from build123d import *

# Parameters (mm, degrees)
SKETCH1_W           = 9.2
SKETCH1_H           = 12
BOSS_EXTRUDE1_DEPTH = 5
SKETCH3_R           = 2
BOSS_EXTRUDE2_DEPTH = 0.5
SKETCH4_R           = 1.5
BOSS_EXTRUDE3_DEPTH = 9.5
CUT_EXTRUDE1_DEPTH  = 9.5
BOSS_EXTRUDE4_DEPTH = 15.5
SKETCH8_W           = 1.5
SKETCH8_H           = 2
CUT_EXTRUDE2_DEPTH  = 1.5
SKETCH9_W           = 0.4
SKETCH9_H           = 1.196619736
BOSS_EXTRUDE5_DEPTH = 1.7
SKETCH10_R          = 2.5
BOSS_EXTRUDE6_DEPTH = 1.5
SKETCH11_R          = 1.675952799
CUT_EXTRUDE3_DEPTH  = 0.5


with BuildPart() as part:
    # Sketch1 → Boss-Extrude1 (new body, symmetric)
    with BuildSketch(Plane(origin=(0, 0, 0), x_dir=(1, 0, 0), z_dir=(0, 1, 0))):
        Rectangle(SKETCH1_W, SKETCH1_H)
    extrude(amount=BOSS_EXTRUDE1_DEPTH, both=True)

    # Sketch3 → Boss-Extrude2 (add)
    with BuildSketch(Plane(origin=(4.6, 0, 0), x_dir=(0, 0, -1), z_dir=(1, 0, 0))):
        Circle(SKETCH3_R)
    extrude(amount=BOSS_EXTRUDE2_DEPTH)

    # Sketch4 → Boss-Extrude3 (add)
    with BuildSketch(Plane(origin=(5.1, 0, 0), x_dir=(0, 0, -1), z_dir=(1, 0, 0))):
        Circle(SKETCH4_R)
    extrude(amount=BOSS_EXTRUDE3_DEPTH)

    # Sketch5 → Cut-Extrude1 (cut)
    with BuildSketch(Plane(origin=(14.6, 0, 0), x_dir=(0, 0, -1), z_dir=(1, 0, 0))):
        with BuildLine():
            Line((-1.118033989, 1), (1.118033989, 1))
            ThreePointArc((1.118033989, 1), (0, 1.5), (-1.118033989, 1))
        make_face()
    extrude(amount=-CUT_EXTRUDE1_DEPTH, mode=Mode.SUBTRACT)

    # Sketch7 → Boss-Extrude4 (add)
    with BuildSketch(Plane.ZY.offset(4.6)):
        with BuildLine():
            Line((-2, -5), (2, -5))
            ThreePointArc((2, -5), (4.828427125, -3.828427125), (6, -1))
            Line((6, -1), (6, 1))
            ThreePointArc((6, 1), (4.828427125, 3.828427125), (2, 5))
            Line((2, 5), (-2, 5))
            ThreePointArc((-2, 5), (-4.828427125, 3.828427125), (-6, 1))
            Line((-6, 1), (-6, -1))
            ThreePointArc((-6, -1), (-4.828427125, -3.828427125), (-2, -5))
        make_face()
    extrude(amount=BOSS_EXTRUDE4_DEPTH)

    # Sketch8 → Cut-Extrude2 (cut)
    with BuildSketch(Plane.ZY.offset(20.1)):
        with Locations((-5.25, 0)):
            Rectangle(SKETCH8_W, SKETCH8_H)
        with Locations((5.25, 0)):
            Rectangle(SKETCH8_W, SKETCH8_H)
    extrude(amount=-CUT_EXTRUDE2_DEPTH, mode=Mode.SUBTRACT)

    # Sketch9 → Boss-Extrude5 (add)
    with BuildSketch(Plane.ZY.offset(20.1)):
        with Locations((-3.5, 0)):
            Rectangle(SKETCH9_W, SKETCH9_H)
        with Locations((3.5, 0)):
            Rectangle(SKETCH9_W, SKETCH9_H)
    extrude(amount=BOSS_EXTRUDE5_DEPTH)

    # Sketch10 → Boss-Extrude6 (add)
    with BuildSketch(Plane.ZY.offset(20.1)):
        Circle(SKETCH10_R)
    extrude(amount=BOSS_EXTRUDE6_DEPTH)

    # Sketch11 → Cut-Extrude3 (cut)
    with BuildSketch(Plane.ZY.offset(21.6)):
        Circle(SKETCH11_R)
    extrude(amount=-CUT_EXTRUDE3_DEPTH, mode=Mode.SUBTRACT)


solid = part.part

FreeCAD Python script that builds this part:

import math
import FreeCAD as App
import Part
import Sketcher
from FreeCAD import Vector

doc = App.newDocument("Part")
body = doc.addObject("PartDesign::Body", "Body")

# Sketch on XZ plane
sketch1 = body.newObject("Sketcher::SketchObject", "Sketch")
sketch1.AttachmentSupport = (doc.getObject("XZ_Plane"), [""])
sketch1.MapMode = "FlatFace"
sketch1.addGeometry([
    Part.LineSegment(Vector(-5, -6, 0), Vector(-5, 6, 0)),
    Part.LineSegment(Vector(-5, 6, 0), Vector(5, 6, 0)),
    Part.LineSegment(Vector(5, 6, 0), Vector(5, -6, 0)),
    Part.LineSegment(Vector(5, -6, 0), Vector(-5, -6, 0)),
], False)
sketch1.addConstraint([
    Sketcher.Constraint("Coincident", 0, 2, 1, 1),
    Sketcher.Constraint("Coincident", 1, 2, 2, 1),
    Sketcher.Constraint("Coincident", 2, 2, 3, 1),
    Sketcher.Constraint("Coincident", 3, 2, 0, 1),
    Sketcher.Constraint("Vertical", 0),
    Sketcher.Constraint("Horizontal", 1),
    Sketcher.Constraint("Vertical", 2),
    Sketcher.Constraint("Horizontal", 3),
    Sketcher.Constraint("Symmetric", 0, 2, 2, 2, -1, 1),
    Sketcher.Constraint("DistanceY", 0, 1, 0, 2, 12.0),
    Sketcher.Constraint("DistanceX", 1, 1, 1, 2, 9.2),
])
pad1 = body.newObject("PartDesign::Pad", "Pad")
pad1.Profile = sketch1
pad1.Length = 10
pad1.Midplane = True

# Sketch on YZ plane
sketch2 = body.newObject("Sketcher::SketchObject", "Sketch001")
sketch2.AttachmentSupport = (doc.getObject("YZ_Plane"), [""])
sketch2.MapMode = "FlatFace"
sketch2.AttachmentOffset = App.Placement(Vector(0, 0, 4.6), App.Rotation())
sketch2.addGeometry(Part.Circle(Vector(0, 0, 0), Vector(0, 0, 1), 2), False)
sketch2.addConstraint([
    Sketcher.Constraint("Coincident", 0, 3, -1, 1),
    Sketcher.Constraint("Diameter", 0, 4.0),
])
pad2 = body.newObject("PartDesign::Pad", "Pad001")
pad2.Profile = sketch2
pad2.Length = 0.5

# Sketch on YZ plane
sketch3 = body.newObject("Sketcher::SketchObject", "Sketch002")
sketch3.AttachmentSupport = (doc.getObject("YZ_Plane"), [""])
sketch3.MapMode = "FlatFace"
sketch3.AttachmentOffset = App.Placement(Vector(0, 0, 5.1), App.Rotation())
sketch3.addGeometry(Part.Circle(Vector(0, 0, 0), Vector(0, 0, 1), 1.5), False)
sketch3.addConstraint([
    Sketcher.Constraint("Coincident", 0, 3, -1, 1),
    Sketcher.Constraint("Diameter", 0, 3.0),
])
pad3 = body.newObject("PartDesign::Pad", "Pad002")
pad3.Profile = sketch3
pad3.Length = 9.5

# Sketch on YZ plane
sketch4 = body.newObject("Sketcher::SketchObject", "Sketch003")
sketch4.AttachmentSupport = (doc.getObject("YZ_Plane"), [""])
sketch4.MapMode = "FlatFace"
sketch4.AttachmentOffset = App.Placement(Vector(0, 0, 14.6), App.Rotation())
sketch4.addGeometry([
    Part.LineSegment(Vector(1, 1.1, 0), Vector(1, -1.1, 0)),
    Part.ArcOfCircle(Part.Circle(Vector(0, 0, 0), Vector(0, 0, 1), 1.5), math.radians(-48), math.radians(48)),
], False)
sketch4.addConstraint([
    Sketcher.Constraint("Coincident", 0, 1, 1, 2),
    Sketcher.Constraint("Coincident", 1, 1, 0, 2),
    Sketcher.Constraint("Vertical", 0),
    Sketcher.Constraint("Coincident", 1, 3, -1, 1),
    Sketcher.Constraint("Radius", 1, 1.5),
    Sketcher.Constraint("DistanceX", -1, 1, 0, 1, 1.0),
])
pocket1 = body.newObject("PartDesign::Pocket", "Pocket")
pocket1.Profile = sketch4
pocket1.Length = 9.5

# Sketch on YZ plane
sketch5 = body.newObject("Sketcher::SketchObject", "Sketch004")
sketch5.AttachmentSupport = (doc.getObject("YZ_Plane"), [""])
sketch5.MapMode = "FlatFace"
sketch5.AttachmentOffset = App.Placement(Vector(0, 0, -4.6), App.Rotation())
sketch5.addGeometry([
    Part.LineSegment(Vector(-5, -2, 0), Vector(-5, 2, 0)),  # 0
    Part.ArcOfCircle(Part.Circle(Vector(-1, 2, 0), Vector(0, 0, 1), 4), math.radians(90), math.radians(180)),  # 1
    Part.LineSegment(Vector(-1, 6, 0), Vector(1, 6, 0)),  # 2
    Part.ArcOfCircle(Part.Circle(Vector(1, 2, 0), Vector(0, 0, 1), 4), math.radians(0), math.radians(90)),  # 3
    Part.LineSegment(Vector(5, 2, 0), Vector(5, -2, 0)),  # 4
    Part.ArcOfCircle(Part.Circle(Vector(1, -2, 0), Vector(0, 0, 1), 4), math.radians(-90), math.radians(0)),  # 5
    Part.LineSegment(Vector(1, -6, 0), Vector(-1, -6, 0)),  # 6
    Part.ArcOfCircle(Part.Circle(Vector(-1, -2, 0), Vector(0, 0, 1), 4), math.radians(180), math.radians(270)),  # 7
], False)
sketch5.addConstraint([
    Sketcher.Constraint("Tangent", 0, 2, 1, 2),
    Sketcher.Constraint("Tangent", 1, 1, 2, 1),
    Sketcher.Constraint("Tangent", 2, 2, 3, 2),
    Sketcher.Constraint("Tangent", 3, 1, 4, 1),
    Sketcher.Constraint("Tangent", 4, 2, 5, 2),
    Sketcher.Constraint("Tangent", 5, 1, 6, 1),
    Sketcher.Constraint("Tangent", 6, 2, 7, 2),
    Sketcher.Constraint("Tangent", 7, 1, 0, 1),
    Sketcher.Constraint("Vertical", 0),
    Sketcher.Constraint("Horizontal", 2),
    Sketcher.Constraint("Vertical", 4),
    Sketcher.Constraint("Horizontal", 6),
    Sketcher.Constraint("Equal", 1, 3),
    Sketcher.Constraint("Equal", 3, 5),
    Sketcher.Constraint("Equal", 5, 7),
    Sketcher.Constraint("Symmetric", 1, 3, 5, 3, -1, 1),
    Sketcher.Constraint("Radius", 1, 4.0),
    Sketcher.Constraint("DistanceX", 2, 1, 2, 2, 2.0),
    Sketcher.Constraint("DistanceY", 0, 1, 0, 2, 4.0),
])
pad4 = body.newObject("PartDesign::Pad", "Pad003")
pad4.Profile = sketch5
pad4.Length = 15.5
pad4.Reversed = True

# Sketch on YZ plane
sketch6 = body.newObject("Sketcher::SketchObject", "Sketch005")
sketch6.AttachmentSupport = (doc.getObject("YZ_Plane"), [""])
sketch6.MapMode = "FlatFace"
sketch6.AttachmentOffset = App.Placement(Vector(0, 0, -20.1), App.Rotation())
sketch6.addGeometry([
    Part.LineSegment(Vector(1, -6, 0), Vector(-1, -6, 0)),  # 0
    Part.LineSegment(Vector(-1, -6, 0), Vector(-1, -4.5, 0)),  # 1
    Part.LineSegment(Vector(-1, -4.5, 0), Vector(1, -4.5, 0)),  # 2
    Part.LineSegment(Vector(1, -4.5, 0), Vector(1, -6, 0)),  # 3
    Part.LineSegment(Vector(1, 4.5, 0), Vector(-1, 4.5, 0)),  # 4
    Part.LineSegment(Vector(-1, 4.5, 0), Vector(-1, 6, 0)),  # 5
    Part.LineSegment(Vector(-1, 6, 0), Vector(1, 6, 0)),  # 6
    Part.LineSegment(Vector(1, 6, 0), Vector(1, 4.5, 0)),  # 7
], False)
sketch6.addConstraint([
    Sketcher.Constraint("Coincident", 0, 2, 1, 1),
    Sketcher.Constraint("Coincident", 1, 2, 2, 1),
    Sketcher.Constraint("Coincident", 2, 2, 3, 1),
    Sketcher.Constraint("Coincident", 3, 2, 0, 1),
    Sketcher.Constraint("Coincident", 4, 2, 5, 1),
    Sketcher.Constraint("Coincident", 5, 2, 6, 1),
    Sketcher.Constraint("Coincident", 6, 2, 7, 1),
    Sketcher.Constraint("Coincident", 7, 2, 4, 1),
    Sketcher.Constraint("Horizontal", 0),
    Sketcher.Constraint("Vertical", 1),
    Sketcher.Constraint("Horizontal", 2),
    Sketcher.Constraint("Vertical", 3),
    Sketcher.Constraint("Horizontal", 4),
    Sketcher.Constraint("Vertical", 5),
    Sketcher.Constraint("Horizontal", 6),
    Sketcher.Constraint("Vertical", 7),
    Sketcher.Constraint("Symmetric", 2, 2, 4, 2, -1, 1),
    Sketcher.Constraint("Symmetric", 0, 2, 6, 2, -1, 1),
    Sketcher.Constraint("Vertical", 1, 2, 4, 2),
    Sketcher.Constraint("DistanceX", 0, 2, 0, 1, 2.0),
    Sketcher.Constraint("DistanceY", 1, 1, 1, 2, 1.5),
    Sketcher.Constraint("DistanceY", 0, 2, -1, 1, 6.0),
])
pocket2 = body.newObject("PartDesign::Pocket", "Pocket001")
pocket2.Profile = sketch6
pocket2.Length = 1.5
pocket2.Reversed = True

# Sketch on YZ plane
sketch7 = body.newObject("Sketcher::SketchObject", "Sketch006")
sketch7.AttachmentSupport = (doc.getObject("YZ_Plane"), [""])
sketch7.MapMode = "FlatFace"
sketch7.AttachmentOffset = App.Placement(Vector(0, 0, -20.1), App.Rotation())
sketch7.addGeometry([
    Part.LineSegment(Vector(0.6, -3.7, 0), Vector(-0.6, -3.7, 0)),  # 0
    Part.LineSegment(Vector(-0.6, -3.7, 0), Vector(-0.6, -3.3, 0)),  # 1
    Part.LineSegment(Vector(-0.6, -3.3, 0), Vector(0.6, -3.3, 0)),  # 2
    Part.LineSegment(Vector(0.6, -3.3, 0), Vector(0.6, -3.7, 0)),  # 3
    Part.LineSegment(Vector(0.6, 3.3, 0), Vector(-0.6, 3.3, 0)),  # 4
    Part.LineSegment(Vector(-0.6, 3.3, 0), Vector(-0.6, 3.7, 0)),  # 5
    Part.LineSegment(Vector(-0.6, 3.7, 0), Vector(0.6, 3.7, 0)),  # 6
    Part.LineSegment(Vector(0.6, 3.7, 0), Vector(0.6, 3.3, 0)),  # 7
], False)
sketch7.addConstraint([
    Sketcher.Constraint("Coincident", 0, 2, 1, 1),
    Sketcher.Constraint("Coincident", 1, 2, 2, 1),
    Sketcher.Constraint("Coincident", 2, 2, 3, 1),
    Sketcher.Constraint("Coincident", 3, 2, 0, 1),
    Sketcher.Constraint("Coincident", 4, 2, 5, 1),
    Sketcher.Constraint("Coincident", 5, 2, 6, 1),
    Sketcher.Constraint("Coincident", 6, 2, 7, 1),
    Sketcher.Constraint("Coincident", 7, 2, 4, 1),
    Sketcher.Constraint("Horizontal", 0),
    Sketcher.Constraint("Vertical", 1),
    Sketcher.Constraint("Horizontal", 2),
    Sketcher.Constraint("Vertical", 3),
    Sketcher.Constraint("Horizontal", 4),
    Sketcher.Constraint("Vertical", 5),
    Sketcher.Constraint("Horizontal", 6),
    Sketcher.Constraint("Vertical", 7),
    Sketcher.Constraint("Symmetric", 2, 2, 4, 2, -1, 1),
    Sketcher.Constraint("Symmetric", 0, 2, 6, 2, -1, 1),
    Sketcher.Constraint("Vertical", 1, 2, 4, 2),
    Sketcher.Constraint("DistanceY", 1, 1, 1, 2, 0.4),
    Sketcher.Constraint("DistanceY", 0, 2, 4, 2, 7.0),
    Sketcher.Constraint("DistanceX", 0, 2, 0, 1, 1.19662),
])
pad5 = body.newObject("PartDesign::Pad", "Pad004")
pad5.Profile = sketch7
pad5.Length = 1.7
pad5.Reversed = True

# Sketch on YZ plane
sketch8 = body.newObject("Sketcher::SketchObject", "Sketch007")
sketch8.AttachmentSupport = (doc.getObject("YZ_Plane"), [""])
sketch8.MapMode = "FlatFace"
sketch8.AttachmentOffset = App.Placement(Vector(0, 0, -20.1), App.Rotation())
sketch8.addGeometry(Part.Circle(Vector(0, 0, 0), Vector(0, 0, 1), 2.5), False)
sketch8.addConstraint([
    Sketcher.Constraint("Coincident", 0, 3, -1, 1),
    Sketcher.Constraint("Diameter", 0, 5.0),
])
pad6 = body.newObject("PartDesign::Pad", "Pad005")
pad6.Profile = sketch8
pad6.Length = 1.5
pad6.Reversed = True

# Sketch on YZ plane
sketch9 = body.newObject("Sketcher::SketchObject", "Sketch008")
sketch9.AttachmentSupport = (doc.getObject("YZ_Plane"), [""])
sketch9.MapMode = "FlatFace"
sketch9.AttachmentOffset = App.Placement(Vector(0, 0, -21.6), App.Rotation())
sketch9.addGeometry(Part.Circle(Vector(0, 0, 0), Vector(0, 0, 1), 1.7), False)
sketch9.addConstraint([
    Sketcher.Constraint("Coincident", 0, 3, -1, 1),
    Sketcher.Constraint("Diameter", 0, 3.351906),
])
pocket3 = body.newObject("PartDesign::Pocket", "Pocket002")
pocket3.Profile = sketch9
pocket3.Length = 0.5
pocket3.Reversed = True

doc.recompute()
